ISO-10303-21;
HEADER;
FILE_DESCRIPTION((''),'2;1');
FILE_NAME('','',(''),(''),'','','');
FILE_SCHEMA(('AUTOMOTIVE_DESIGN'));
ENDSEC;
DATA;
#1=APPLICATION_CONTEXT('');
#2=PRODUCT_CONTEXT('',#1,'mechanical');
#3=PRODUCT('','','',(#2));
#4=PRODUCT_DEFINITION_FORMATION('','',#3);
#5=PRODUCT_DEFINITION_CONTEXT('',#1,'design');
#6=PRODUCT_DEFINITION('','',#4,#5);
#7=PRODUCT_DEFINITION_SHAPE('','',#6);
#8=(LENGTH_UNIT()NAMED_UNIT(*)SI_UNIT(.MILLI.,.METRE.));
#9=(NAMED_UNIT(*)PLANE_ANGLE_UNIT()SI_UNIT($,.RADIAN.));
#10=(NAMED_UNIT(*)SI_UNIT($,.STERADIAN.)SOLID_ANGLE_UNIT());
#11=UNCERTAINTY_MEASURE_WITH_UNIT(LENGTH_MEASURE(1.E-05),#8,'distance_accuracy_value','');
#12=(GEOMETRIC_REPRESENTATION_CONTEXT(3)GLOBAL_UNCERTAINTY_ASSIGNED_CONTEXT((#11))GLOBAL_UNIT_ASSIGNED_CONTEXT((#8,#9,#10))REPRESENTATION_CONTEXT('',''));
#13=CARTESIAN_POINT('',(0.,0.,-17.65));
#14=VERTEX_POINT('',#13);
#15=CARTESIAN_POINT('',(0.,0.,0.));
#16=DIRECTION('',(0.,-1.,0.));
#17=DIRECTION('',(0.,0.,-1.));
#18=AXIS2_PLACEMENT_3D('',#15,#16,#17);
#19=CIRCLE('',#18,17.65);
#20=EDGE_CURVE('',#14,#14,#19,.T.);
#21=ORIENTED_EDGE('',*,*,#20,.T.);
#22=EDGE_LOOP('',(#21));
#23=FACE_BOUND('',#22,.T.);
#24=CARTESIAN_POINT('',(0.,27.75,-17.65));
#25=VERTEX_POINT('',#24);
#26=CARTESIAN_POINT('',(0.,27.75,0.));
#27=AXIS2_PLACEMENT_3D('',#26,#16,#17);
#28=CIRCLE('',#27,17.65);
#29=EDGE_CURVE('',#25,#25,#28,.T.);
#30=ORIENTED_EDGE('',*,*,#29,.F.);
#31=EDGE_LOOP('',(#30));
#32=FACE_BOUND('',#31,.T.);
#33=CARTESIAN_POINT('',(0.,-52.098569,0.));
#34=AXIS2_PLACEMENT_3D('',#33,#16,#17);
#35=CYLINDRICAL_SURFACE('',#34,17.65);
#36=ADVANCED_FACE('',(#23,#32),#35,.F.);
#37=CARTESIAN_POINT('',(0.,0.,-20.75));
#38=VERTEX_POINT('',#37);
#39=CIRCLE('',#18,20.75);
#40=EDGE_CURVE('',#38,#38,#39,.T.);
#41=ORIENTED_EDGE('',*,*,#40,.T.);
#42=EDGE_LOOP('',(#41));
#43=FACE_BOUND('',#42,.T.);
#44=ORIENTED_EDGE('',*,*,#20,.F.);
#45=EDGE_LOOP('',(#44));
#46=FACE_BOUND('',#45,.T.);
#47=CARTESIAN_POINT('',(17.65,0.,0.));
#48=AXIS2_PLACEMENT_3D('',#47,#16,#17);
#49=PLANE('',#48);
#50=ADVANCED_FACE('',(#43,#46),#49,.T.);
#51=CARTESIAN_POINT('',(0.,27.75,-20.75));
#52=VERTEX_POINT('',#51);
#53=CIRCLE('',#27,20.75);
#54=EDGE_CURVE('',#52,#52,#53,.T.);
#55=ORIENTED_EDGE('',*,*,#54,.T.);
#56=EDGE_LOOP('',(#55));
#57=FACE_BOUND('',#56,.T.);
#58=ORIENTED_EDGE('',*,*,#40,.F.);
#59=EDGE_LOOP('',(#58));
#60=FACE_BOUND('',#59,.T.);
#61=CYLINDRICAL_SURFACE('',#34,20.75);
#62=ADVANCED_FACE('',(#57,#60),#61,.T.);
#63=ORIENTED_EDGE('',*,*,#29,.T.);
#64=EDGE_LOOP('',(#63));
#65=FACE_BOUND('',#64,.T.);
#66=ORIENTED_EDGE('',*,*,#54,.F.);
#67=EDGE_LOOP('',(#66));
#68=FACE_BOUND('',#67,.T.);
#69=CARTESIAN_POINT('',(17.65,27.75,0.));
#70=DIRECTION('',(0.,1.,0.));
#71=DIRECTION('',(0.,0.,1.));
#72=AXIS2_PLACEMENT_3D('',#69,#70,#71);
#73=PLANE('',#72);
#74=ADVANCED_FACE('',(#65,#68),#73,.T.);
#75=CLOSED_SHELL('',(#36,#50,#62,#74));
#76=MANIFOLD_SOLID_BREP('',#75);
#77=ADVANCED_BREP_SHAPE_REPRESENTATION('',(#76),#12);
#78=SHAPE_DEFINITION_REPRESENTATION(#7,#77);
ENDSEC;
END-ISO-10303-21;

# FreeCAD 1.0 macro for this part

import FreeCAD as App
import Part
import Sketcher

V = App.Vector
Q = App.Units.Quantity

doc = App.newDocument("Part")
body = doc.addObject("PartDesign::Body", "Body")

# Sketch on XY plane
sketch1 = doc.addObject("Sketcher::SketchObject", "Sketch")
body.addObject(sketch1)
sketch1.AttachmentSupport = (doc.XY_Plane, [""])
sketch1.MapMode = "FlatFace"
sketch1.addGeometry(Part.LineSegment(V(17.6, 27.8, 0), V(17.6, 0, 0)), False)
sketch1.addGeometry(Part.LineSegment(V(17.6, 0, 0), V(20.8, 0, 0)), False)
sketch1.addGeometry(Part.LineSegment(V(20.8, 0, 0), V(20.8, 27.8, 0)), False)
sketch1.addGeometry(Part.LineSegment(V(20.8, 27.8, 0), V(17.6, 27.8, 0)), False)
sketch1.addConstraint(Sketcher.Constraint("Coincident", 0, 2, 1, 1))
sketch1.addConstraint(Sketcher.Constraint("Coincident", 1, 2, 2, 1))
sketch1.addConstraint(Sketcher.Constraint("Coincident", 2, 2, 3, 1))
sketch1.addConstraint(Sketcher.Constraint("Coincident", 3, 2, 0, 1))
sketch1.addConstraint(Sketcher.Constraint("Vertical", 0))
sketch1.addConstraint(Sketcher.Constraint("Horizontal", 1))
sketch1.addConstraint(Sketcher.Constraint("Vertical", 2))
sketch1.addConstraint(Sketcher.Constraint("Horizontal", 3))
sketch1.addConstraint(Sketcher.Constraint("PointOnObject", 0, 2, -1))
sketch1.addConstraint(Sketcher.Constraint("DistanceX", 1, 1, 1, 2, Q("3.1 mm")))
sketch1.addConstraint(Sketcher.Constraint("DistanceY", 0, 2, 0, 1, Q("27.75 mm")))
sketch1.addConstraint(Sketcher.Constraint("DistanceX", -1, 1, 0, 2, Q("17.65 mm")))
revolution = doc.addObject("PartDesign::Revolution", "Revolution")
body.addObject(revolution)
revolution.Profile = sketch1
revolution.ReferenceAxis = (sketch1, ["V_Axis"])
revolution.Angle = 360

doc.recompute()
